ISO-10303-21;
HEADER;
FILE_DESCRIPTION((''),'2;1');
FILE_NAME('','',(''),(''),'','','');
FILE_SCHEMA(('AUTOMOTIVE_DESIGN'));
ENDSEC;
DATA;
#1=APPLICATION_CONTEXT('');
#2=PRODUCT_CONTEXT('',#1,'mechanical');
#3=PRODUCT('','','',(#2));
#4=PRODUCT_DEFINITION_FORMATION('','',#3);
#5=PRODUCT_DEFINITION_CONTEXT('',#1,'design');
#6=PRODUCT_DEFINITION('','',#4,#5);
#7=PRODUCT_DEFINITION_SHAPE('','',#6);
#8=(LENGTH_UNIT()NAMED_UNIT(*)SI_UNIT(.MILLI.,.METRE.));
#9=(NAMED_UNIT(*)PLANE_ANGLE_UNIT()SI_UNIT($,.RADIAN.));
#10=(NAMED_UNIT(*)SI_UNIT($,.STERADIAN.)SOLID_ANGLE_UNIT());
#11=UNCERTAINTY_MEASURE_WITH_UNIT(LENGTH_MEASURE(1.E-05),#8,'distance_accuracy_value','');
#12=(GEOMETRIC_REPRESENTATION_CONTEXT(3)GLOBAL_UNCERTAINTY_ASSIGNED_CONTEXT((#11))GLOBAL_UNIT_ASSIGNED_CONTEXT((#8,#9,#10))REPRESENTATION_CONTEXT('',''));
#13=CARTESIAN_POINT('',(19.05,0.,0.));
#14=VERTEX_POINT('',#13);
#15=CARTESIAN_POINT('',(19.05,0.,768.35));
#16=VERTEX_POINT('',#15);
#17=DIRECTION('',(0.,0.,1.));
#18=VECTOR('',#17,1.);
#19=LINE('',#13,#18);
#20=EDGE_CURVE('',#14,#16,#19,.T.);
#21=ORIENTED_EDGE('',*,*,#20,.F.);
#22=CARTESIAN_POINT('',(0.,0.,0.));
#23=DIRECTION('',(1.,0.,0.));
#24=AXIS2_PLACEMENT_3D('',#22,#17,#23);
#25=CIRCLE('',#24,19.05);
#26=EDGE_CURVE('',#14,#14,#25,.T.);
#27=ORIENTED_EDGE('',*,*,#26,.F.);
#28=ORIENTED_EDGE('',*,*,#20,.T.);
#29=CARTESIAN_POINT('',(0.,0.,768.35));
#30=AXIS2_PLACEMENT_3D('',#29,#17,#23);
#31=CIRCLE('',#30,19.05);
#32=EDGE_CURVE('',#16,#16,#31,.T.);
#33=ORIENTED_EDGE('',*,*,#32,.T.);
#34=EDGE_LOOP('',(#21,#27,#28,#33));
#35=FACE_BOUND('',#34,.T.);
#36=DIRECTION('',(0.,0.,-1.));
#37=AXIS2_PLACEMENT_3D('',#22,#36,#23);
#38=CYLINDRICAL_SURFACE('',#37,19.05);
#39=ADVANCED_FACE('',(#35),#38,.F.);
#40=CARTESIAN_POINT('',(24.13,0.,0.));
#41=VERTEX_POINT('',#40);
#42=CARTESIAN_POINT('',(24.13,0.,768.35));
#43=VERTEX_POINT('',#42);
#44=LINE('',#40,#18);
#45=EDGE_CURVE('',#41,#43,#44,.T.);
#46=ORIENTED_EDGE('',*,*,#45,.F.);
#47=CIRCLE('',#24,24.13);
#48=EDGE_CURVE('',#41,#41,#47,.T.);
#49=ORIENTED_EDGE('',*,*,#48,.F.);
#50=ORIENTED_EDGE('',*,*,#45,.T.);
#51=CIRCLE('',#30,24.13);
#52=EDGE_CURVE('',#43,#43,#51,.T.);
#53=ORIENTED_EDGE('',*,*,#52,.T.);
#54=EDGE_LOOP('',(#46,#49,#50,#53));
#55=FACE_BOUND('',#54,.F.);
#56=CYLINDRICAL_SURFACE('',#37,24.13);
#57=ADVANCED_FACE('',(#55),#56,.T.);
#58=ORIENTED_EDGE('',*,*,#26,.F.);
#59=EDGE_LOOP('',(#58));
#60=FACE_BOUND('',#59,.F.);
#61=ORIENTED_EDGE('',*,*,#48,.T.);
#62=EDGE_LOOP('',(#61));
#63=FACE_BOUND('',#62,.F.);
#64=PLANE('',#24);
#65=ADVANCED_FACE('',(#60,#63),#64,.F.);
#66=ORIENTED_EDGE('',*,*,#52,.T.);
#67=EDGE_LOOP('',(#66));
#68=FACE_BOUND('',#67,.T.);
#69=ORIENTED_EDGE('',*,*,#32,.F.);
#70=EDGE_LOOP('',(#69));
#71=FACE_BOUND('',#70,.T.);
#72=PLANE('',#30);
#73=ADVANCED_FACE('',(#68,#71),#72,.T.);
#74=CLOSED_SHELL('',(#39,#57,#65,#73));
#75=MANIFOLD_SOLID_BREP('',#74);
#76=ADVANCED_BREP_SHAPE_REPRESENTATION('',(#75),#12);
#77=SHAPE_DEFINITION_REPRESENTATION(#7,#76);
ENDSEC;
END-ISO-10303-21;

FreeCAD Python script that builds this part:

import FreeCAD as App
import Part
import Sketcher

V = App.Vector
Q = App.Units.Quantity

doc = App.newDocument("Part")
body = doc.addObject("PartDesign::Body", "Body")

# Sketch on XY plane
sketch1 = body.newObject("Sketcher::SketchObject", "Sketch")
sketch1.AttachmentSupport = (doc.getObject("XY_Plane"), [""])
sketch1.MapMode = "FlatFace"
sketch1.addGeometry([
    Part.Circle(V(0, 0, 0), V(0, 0, 1), 24.13),
    Part.Circle(V(0, 0, 0), V(0, 0, 1), 19.05),
], False)
sketch1.addConstraint([
    Sketcher.Constraint("Coincident", 0, 3, -1, 1),
    Sketcher.Constraint("Coincident", 1, 3, -1, 1),
    Sketcher.Constraint("Diameter", 0, Q("1.9 in")),
    Sketcher.Constraint("Diameter", 1, Q("1.5 in")),
])
pad1 = body.newObject("PartDesign::Pad", "Pad")
pad1.Profile = sketch1
pad1.Length = Q("30.25 in")

doc.recompute()
